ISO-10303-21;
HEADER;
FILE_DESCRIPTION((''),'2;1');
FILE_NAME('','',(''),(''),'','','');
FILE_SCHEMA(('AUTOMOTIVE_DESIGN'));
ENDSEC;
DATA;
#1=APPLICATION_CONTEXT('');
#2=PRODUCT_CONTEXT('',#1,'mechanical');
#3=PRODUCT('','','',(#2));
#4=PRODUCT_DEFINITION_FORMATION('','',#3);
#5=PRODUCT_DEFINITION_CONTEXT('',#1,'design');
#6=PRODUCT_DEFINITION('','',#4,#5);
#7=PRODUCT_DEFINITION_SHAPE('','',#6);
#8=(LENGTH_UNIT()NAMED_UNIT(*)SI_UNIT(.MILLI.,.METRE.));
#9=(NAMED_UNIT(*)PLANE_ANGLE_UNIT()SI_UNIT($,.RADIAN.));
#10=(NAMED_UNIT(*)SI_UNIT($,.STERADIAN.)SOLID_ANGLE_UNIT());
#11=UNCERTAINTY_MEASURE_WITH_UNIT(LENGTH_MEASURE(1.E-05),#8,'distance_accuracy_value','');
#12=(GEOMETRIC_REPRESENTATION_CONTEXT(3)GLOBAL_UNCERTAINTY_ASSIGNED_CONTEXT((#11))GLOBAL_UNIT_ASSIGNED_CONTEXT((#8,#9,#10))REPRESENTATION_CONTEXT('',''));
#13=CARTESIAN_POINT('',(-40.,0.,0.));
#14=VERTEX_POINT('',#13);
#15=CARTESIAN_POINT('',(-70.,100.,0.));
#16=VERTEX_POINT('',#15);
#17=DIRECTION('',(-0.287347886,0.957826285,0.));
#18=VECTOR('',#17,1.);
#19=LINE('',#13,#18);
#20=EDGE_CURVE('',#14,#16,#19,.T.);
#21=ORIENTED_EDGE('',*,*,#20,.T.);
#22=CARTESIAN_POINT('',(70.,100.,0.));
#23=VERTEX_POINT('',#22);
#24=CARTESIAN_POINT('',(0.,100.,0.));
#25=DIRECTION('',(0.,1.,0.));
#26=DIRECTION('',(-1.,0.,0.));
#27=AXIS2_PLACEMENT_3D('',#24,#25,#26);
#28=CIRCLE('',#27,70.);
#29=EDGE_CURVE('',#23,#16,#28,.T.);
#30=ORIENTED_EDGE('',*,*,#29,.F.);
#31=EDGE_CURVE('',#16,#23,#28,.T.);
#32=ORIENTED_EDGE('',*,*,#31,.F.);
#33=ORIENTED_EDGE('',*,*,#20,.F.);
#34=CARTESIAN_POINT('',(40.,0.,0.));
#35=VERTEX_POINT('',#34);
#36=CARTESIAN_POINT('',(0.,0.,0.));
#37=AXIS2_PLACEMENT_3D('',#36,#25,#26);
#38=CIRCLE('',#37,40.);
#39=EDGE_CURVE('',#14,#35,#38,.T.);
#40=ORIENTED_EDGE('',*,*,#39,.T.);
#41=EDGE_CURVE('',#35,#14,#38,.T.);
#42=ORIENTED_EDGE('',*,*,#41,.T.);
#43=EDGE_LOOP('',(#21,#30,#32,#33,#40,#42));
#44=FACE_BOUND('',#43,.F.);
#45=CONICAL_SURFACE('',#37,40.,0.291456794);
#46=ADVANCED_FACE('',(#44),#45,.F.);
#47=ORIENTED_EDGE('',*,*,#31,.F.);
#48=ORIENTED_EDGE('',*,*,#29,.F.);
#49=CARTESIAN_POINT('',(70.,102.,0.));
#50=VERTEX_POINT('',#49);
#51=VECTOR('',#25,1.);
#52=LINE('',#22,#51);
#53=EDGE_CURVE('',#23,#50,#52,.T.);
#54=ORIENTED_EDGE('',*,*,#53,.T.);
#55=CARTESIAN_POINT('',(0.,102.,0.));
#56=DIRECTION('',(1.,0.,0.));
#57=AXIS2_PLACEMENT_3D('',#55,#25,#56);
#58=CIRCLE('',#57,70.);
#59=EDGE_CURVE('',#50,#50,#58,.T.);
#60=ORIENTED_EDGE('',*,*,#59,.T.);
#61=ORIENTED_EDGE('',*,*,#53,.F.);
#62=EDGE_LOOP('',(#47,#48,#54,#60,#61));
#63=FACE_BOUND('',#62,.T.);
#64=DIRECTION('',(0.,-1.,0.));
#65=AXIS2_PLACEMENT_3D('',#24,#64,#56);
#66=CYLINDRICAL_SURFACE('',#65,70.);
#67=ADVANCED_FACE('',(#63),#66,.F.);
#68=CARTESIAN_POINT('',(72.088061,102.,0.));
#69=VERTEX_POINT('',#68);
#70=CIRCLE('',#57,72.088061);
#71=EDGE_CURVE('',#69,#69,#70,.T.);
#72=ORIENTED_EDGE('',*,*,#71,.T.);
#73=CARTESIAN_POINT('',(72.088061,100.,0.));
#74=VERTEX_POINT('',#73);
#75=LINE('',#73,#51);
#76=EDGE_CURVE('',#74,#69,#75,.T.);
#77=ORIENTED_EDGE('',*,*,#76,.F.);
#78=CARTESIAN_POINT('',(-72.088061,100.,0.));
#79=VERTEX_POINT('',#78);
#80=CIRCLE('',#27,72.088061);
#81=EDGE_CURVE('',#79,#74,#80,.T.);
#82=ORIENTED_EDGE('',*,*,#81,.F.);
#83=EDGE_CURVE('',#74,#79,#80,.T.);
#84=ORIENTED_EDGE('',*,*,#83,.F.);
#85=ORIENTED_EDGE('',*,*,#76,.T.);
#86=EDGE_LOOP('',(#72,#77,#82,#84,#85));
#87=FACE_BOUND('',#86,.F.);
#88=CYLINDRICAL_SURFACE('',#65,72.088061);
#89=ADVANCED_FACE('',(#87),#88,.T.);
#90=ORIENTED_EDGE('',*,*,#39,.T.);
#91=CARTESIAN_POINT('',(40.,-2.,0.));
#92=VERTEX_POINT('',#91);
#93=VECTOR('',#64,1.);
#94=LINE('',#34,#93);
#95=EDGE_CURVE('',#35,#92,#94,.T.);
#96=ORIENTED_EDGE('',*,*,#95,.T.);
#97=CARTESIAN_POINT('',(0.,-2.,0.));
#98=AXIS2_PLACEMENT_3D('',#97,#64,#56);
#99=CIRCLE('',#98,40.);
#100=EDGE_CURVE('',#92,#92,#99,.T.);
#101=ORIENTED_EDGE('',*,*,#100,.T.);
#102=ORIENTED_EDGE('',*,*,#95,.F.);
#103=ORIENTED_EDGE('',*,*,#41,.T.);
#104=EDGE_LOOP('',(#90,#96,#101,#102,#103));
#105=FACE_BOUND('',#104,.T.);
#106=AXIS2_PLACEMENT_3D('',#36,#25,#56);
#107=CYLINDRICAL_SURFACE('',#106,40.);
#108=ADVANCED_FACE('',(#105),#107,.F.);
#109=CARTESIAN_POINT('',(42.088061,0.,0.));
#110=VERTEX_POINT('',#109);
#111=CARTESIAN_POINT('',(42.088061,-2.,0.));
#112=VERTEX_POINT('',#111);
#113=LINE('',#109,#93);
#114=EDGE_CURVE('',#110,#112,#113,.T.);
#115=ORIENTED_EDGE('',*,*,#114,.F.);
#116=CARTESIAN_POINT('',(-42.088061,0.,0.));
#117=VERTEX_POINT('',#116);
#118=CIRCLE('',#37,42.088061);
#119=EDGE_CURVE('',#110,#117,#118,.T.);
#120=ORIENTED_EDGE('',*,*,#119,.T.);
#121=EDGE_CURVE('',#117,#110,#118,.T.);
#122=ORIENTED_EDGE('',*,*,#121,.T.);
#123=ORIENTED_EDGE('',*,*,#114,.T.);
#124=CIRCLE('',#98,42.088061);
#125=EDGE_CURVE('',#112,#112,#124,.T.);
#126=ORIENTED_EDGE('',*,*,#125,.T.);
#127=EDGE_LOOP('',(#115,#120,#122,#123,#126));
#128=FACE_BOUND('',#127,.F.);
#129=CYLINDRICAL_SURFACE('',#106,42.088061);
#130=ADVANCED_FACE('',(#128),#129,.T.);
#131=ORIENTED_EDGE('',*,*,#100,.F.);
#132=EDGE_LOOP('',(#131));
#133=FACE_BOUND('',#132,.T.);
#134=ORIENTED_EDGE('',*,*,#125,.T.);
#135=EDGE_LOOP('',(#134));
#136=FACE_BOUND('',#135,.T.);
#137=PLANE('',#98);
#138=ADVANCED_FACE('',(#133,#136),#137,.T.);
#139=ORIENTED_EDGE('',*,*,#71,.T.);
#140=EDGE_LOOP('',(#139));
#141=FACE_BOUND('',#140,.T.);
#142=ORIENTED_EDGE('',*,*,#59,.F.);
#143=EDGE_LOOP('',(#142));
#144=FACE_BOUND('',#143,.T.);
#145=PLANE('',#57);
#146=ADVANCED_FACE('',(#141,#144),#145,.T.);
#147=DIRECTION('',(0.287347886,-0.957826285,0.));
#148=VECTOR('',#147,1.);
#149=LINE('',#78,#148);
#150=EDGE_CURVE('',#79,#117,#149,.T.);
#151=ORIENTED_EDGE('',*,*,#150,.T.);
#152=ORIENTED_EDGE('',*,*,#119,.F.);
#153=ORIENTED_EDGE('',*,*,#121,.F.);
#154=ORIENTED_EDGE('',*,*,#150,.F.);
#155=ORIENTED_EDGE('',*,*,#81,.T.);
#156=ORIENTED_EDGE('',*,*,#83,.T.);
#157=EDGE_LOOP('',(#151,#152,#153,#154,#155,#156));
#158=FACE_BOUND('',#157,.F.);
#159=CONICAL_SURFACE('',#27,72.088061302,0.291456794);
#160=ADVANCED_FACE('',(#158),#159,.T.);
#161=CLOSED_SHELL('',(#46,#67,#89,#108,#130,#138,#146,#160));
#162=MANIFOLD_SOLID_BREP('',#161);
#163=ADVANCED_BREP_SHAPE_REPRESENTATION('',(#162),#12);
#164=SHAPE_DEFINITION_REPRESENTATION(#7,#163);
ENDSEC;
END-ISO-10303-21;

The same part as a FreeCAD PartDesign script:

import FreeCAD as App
import Part
import Sketcher

V = App.Vector
Q = App.Units.Quantity


def add_polygon(sketch, points):
    """Adds a closed chain of lines whose ends are joined by coincident constraints."""
    first, n = sketch.GeometryCount, len(points)
    for a, b in zip(points, points[1:] + points[:1]):
        sketch.addGeometry(Part.LineSegment(App.Vector(*a, 0), App.Vector(*b, 0)), False)
    for i in range(n):
        sketch.addConstraint(Sketcher.Constraint("Coincident", first + i, 2, first + (i + 1) % n, 1))

doc = App.newDocument("Part")
body = doc.addObject("PartDesign::Body", "Body")

# Sketch on XY plane
sketch1 = body.newObject("Sketcher::SketchObject", "Sketch")
sketch1.AttachmentSupport = (doc.getObject("XY_Plane"), [""])
sketch1.MapMode = "FlatFace"
add_polygon(sketch1, [(-40, 0), (-70, 100), (-72.1, 100), (-42.1, 0)])  # lines 0-3
sketch1.addConstraint(Sketcher.Constraint("Horizontal", 1))
sketch1.addConstraint(Sketcher.Constraint("Horizontal", 3))
sketch1.addConstraint(Sketcher.Constraint("PointOnObject", 2, 2, -1))
sketch1.addConstraint(Sketcher.Constraint("Parallel", 0, 2))
sketch1.addConstraint(Sketcher.Constraint("DistanceX", 0, 2, -1, 1, Q("70 mm")))
sketch1.addConstraint(Sketcher.Constraint("DistanceY", -1, 1, 0, 2, Q("100 mm")))
sketch1.addConstraint(Sketcher.Constraint("DistanceX", 3, 2, -1, 1, Q("40 mm")))
sketch1.addConstraint(Sketcher.Constraint("DistanceX", 1, 2, 1, 1, Q("2.088061 mm")))
revolution = body.newObject("PartDesign::Revolution", "Revolution")
revolution.Profile = sketch1
revolution.ReferenceAxis = (sketch1, ["V_Axis"])
revolution.Angle = 360

# Sketch on XZ plane
sketch2 = body.newObject("Sketcher::SketchObject", "Sketch001")
sketch2.AttachmentSupport = (doc.getObject("XZ_Plane"), [""])
sketch2.MapMode = "FlatFace"
sketch2.addGeometry(Part.Circle(V(0, 0, 0), V(0, 0, 1), 42), False)
sketch2.addGeometry(Part.Circle(V(0, 0, 0), V(0, 0, 1), 40), False)
sketch2.addConstraint(Sketcher.Constraint("Coincident", 0, 3, -1, 1))
sketch2.addConstraint(Sketcher.Constraint("Coincident", 1, 3, -1, 1))
sketch2.addConstraint(Sketcher.Constraint("Diameter", 1, Q("80 mm")))
sketch2.addConstraint(Sketcher.Constraint("Diameter", 0, Q("84.176123 mm")))
pad1 = body.newObject("PartDesign::Pad", "Pad")
pad1.Profile = sketch2
pad1.Length = 2

# Sketch on XZ plane
sketch3 = body.newObject("Sketcher::SketchObject", "Sketch002")
sketch3.AttachmentSupport = (doc.getObject("XZ_Plane"), [""])
sketch3.MapMode = "FlatFace"
sketch3.AttachmentOffset = App.Placement(V(0, 0, -100), App.Rotation())
sketch3.addGeometry(Part.Circle(V(0, 0, 0), V(0, 0, 1), 72), False)
sketch3.addGeometry(Part.Circle(V(0, 0, 0), V(0, 0, 1), 70), False)
sketch3.addConstraint(Sketcher.Constraint("Coincident", 0, 3, -1, 1))
sketch3.addConstraint(Sketcher.Constraint("Coincident", 1, 3, -1, 1))
sketch3.addConstraint(Sketcher.Constraint("Diameter", 1, Q("140 mm")))
sketch3.addConstraint(Sketcher.Constraint("Diameter", 0, Q("144.176123 mm")))
pad2 = body.newObject("PartDesign::Pad", "Pad001")
pad2.Profile = sketch3
pad2.Length = 2
pad2.Reversed = True

doc.recompute()
